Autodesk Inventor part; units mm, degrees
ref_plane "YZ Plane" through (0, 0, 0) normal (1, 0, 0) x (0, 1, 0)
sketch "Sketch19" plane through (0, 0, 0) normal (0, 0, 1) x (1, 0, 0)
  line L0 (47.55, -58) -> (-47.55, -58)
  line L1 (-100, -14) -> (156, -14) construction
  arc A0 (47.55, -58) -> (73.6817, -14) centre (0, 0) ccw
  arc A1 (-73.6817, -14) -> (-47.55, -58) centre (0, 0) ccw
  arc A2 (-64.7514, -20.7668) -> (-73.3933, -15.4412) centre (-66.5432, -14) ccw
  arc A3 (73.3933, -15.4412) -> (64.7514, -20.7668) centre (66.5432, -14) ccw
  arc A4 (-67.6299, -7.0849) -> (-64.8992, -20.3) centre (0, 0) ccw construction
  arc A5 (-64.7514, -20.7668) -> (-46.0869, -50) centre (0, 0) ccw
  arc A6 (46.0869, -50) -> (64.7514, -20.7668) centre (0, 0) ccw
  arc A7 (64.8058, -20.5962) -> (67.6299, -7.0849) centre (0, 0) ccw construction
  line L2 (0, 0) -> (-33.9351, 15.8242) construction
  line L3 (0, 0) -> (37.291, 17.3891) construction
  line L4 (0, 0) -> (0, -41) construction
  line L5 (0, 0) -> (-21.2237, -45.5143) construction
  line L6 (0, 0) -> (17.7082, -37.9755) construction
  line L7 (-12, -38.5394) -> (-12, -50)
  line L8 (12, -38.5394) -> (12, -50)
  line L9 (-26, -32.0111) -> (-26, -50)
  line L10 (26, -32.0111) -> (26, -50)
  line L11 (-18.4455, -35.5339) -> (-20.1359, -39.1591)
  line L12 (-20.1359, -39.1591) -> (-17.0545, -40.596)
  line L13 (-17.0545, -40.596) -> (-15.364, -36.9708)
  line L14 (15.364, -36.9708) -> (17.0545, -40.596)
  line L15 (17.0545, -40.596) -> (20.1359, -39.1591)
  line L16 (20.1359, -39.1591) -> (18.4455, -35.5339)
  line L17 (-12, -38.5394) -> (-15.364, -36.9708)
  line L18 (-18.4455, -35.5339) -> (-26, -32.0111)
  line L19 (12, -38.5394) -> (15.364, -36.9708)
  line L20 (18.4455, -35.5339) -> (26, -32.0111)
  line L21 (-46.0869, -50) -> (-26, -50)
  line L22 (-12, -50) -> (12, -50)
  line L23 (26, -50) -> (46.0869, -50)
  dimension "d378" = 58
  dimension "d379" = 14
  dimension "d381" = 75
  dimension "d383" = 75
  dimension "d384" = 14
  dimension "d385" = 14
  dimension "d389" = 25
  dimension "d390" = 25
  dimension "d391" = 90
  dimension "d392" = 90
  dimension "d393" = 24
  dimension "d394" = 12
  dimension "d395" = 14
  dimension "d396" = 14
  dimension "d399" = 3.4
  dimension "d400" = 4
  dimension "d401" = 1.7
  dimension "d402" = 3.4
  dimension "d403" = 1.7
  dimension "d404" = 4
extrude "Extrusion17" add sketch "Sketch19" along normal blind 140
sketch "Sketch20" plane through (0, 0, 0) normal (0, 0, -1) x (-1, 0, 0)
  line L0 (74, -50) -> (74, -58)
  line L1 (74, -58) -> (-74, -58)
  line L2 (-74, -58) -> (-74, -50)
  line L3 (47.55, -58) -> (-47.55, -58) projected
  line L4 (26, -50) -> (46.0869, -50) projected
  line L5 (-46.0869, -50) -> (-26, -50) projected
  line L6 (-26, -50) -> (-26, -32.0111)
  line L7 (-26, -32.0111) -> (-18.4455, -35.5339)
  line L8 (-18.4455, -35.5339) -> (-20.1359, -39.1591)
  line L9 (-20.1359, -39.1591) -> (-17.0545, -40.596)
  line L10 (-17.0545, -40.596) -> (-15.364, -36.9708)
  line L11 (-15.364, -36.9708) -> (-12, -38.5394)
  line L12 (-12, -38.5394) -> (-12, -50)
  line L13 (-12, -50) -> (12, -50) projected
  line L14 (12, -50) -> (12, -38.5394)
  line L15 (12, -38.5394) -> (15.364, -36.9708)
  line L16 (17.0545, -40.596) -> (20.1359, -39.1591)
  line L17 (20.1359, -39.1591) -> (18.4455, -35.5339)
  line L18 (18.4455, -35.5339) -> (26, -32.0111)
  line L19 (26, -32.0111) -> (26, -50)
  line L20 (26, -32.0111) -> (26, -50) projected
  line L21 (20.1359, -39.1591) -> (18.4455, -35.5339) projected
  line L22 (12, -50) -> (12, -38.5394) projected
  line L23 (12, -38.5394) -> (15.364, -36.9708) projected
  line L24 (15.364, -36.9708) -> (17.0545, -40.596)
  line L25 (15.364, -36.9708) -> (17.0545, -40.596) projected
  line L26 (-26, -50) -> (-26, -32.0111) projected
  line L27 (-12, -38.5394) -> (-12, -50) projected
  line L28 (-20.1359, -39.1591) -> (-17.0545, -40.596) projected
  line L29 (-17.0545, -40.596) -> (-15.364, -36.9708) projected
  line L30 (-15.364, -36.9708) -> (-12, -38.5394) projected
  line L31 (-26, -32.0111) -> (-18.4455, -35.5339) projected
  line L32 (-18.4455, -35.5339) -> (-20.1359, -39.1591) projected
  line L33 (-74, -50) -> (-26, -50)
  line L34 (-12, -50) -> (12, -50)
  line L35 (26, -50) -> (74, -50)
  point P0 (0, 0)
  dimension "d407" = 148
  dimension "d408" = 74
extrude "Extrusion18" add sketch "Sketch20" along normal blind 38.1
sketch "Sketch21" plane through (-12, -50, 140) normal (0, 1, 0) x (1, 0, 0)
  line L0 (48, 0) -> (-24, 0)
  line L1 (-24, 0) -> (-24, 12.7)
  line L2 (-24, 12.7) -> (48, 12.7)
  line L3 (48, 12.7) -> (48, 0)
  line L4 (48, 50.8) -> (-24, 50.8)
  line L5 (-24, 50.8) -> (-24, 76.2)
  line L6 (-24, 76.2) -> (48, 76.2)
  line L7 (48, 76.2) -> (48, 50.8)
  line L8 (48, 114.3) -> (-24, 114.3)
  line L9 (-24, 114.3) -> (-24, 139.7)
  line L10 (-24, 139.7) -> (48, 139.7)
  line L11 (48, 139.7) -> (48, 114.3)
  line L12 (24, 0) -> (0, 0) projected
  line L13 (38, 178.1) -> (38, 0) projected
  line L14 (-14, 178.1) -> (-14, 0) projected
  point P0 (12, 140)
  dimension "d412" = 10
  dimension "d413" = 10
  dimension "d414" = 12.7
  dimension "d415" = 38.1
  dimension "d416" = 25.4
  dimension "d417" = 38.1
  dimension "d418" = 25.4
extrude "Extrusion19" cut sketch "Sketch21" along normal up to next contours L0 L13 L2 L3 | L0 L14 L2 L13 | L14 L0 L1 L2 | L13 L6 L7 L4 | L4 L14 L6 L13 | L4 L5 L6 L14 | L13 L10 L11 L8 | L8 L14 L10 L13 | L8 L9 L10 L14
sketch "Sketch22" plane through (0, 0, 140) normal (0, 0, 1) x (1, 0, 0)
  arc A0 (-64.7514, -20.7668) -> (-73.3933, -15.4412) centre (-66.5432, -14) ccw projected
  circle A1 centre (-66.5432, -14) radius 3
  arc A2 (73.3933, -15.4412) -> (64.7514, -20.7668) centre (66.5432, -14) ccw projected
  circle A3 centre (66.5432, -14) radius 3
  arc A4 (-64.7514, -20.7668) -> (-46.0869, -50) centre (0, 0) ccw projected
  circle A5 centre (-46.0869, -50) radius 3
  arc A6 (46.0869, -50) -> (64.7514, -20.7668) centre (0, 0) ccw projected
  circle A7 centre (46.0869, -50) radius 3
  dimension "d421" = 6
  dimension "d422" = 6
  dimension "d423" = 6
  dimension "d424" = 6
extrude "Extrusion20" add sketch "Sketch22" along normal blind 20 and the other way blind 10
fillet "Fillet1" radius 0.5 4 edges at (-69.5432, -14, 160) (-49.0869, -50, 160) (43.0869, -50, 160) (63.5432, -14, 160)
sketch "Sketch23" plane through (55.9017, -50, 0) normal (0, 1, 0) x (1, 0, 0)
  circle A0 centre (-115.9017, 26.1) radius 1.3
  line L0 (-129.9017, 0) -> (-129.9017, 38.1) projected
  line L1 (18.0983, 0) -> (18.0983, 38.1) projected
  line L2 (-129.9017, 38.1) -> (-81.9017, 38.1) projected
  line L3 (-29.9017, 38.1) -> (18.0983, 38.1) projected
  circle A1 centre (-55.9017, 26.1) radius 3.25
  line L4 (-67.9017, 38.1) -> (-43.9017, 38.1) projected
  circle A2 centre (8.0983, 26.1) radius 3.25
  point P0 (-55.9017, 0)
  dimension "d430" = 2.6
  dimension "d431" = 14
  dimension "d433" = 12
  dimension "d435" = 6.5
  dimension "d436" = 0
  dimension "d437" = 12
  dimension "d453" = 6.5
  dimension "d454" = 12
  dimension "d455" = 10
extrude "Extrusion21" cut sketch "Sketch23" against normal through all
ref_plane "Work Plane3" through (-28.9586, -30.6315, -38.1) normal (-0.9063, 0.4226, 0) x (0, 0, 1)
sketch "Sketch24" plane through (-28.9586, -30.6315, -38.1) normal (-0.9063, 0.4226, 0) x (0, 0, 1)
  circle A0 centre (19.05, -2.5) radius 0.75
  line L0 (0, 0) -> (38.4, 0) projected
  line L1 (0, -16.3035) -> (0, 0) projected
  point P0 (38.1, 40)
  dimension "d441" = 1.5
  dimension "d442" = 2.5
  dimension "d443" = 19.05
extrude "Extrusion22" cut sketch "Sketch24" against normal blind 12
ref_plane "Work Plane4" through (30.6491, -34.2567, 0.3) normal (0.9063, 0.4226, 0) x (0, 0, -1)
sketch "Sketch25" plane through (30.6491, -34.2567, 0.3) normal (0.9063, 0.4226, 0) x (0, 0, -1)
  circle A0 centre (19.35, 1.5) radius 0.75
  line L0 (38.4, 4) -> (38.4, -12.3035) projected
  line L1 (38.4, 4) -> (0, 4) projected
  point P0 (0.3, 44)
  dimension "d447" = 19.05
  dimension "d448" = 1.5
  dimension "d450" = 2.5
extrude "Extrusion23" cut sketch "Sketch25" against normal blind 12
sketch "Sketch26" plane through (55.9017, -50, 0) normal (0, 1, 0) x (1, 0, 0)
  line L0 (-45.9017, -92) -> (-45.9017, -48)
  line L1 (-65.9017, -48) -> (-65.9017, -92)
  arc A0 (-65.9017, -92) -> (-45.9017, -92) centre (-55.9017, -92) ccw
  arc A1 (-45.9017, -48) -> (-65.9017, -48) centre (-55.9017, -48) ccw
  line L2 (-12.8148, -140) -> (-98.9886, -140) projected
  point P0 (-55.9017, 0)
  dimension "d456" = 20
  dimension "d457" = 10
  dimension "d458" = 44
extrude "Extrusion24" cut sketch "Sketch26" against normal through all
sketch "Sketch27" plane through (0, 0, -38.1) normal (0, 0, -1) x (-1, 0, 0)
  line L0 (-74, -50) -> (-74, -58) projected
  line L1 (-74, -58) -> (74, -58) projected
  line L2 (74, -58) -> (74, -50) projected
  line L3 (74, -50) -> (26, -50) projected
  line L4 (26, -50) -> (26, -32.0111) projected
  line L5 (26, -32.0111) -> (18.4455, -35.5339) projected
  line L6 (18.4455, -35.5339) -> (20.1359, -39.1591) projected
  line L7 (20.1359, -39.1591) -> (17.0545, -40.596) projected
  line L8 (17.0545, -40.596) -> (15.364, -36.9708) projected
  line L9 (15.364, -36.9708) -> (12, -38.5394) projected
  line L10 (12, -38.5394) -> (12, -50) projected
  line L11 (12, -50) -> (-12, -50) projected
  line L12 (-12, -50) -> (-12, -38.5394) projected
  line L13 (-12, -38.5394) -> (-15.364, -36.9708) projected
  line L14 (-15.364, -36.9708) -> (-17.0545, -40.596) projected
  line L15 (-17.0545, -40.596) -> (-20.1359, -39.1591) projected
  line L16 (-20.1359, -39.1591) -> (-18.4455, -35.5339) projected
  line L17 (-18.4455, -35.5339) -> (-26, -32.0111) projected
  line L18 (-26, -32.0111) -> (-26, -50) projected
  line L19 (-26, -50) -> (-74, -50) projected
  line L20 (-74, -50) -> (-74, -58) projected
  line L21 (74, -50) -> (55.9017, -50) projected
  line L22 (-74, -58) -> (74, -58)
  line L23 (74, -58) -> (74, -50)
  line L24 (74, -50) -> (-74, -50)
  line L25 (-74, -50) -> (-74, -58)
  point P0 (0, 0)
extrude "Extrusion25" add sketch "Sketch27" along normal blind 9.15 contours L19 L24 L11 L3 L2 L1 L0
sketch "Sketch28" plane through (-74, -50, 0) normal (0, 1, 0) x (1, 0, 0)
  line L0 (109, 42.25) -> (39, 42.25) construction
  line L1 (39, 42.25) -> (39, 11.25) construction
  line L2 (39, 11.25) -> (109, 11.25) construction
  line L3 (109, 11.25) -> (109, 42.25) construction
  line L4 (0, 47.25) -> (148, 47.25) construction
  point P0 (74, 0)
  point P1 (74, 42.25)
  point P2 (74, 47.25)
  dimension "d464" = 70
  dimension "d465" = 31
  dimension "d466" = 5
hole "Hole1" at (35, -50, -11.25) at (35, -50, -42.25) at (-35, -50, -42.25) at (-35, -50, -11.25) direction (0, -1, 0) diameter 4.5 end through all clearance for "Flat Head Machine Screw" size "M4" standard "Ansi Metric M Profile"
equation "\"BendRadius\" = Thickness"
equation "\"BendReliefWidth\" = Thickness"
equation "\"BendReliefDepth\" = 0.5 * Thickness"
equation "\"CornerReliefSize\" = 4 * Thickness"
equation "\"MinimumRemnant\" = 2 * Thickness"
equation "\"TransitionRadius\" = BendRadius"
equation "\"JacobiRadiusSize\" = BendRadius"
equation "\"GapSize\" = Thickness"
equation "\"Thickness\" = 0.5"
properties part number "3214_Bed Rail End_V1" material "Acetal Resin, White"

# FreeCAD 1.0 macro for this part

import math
import FreeCAD as App
import Part
import Sketcher

V = App.Vector
Q = App.Units.Quantity


def edges_at(feature, points):
    """Names of the edges that pass closest to the given points."""
    edges = feature.Shape.Edges
    near = lambda p: min(range(len(edges)), key=lambda i: edges[i].distToShape(Part.Vertex(*p))[0])
    return sorted({f"Edge{near(p) + 1}" for p in points})

doc = App.newDocument("Part")
body = doc.addObject("PartDesign::Body", "Body")

sketch1 = body.newObject("Sketcher::SketchObject", "Sketch")
sketch1.AttachmentSupport = (doc.getObject("XY_Plane"), [""])
sketch1.MapMode = "FlatFace"
sketch1.addGeometry([
    Part.LineSegment(V(-47.5, -58, 0), V(47.5, -58, 0)),
    Part.ArcOfCircle(Part.Circle(V(0, 0, 0), V(0, 0, 1), 75), math.radians(-51), math.radians(-12)),
    Part.ArcOfCircle(Part.Circle(V(66.5, -14, 0), V(0, 0, 1), 7), math.radians(-12), math.radians(255)),
    Part.ArcOfCircle(Part.Circle(V(0, 0, 0), V(0, 0, 1), 68), math.radians(-47), math.radians(-18)),
    Part.LineSegment(V(46.1, -50, 0), V(26, -50, 0)),
    Part.LineSegment(V(26, -50, 0), V(26, -32, 0)),
    Part.LineSegment(V(26, -32, 0), V(18.4, -35.5, 0)),
    Part.LineSegment(V(18.4, -35.5, 0), V(20.1, -39.2, 0)),
    Part.LineSegment(V(20.1, -39.2, 0), V(17.1, -40.6, 0)),
    Part.LineSegment(V(17.1, -40.6, 0), V(15.4, -37, 0)),
    Part.LineSegment(V(15.4, -37, 0), V(12, -38.5, 0)),
    Part.LineSegment(V(12, -38.5, 0), V(12, -50, 0)),
    Part.LineSegment(V(12, -50, 0), V(-12, -50, 0)),
    Part.LineSegment(V(-12, -50, 0), V(-12, -38.5, 0)),
    Part.LineSegment(V(-12, -38.5, 0), V(-15.4, -37, 0)),
    Part.LineSegment(V(-15.4, -37, 0), V(-17.1, -40.6, 0)),
    Part.LineSegment(V(-17.1, -40.6, 0), V(-20.1, -39.2, 0)),
    Part.LineSegment(V(-20.1, -39.2, 0), V(-18.4, -35.5, 0)),
    Part.LineSegment(V(-18.4, -35.5, 0), V(-26, -32, 0)),
    Part.LineSegment(V(-26, -32, 0), V(-26, -50, 0)),
    Part.LineSegment(V(-26, -50, 0), V(-46.1, -50, 0)),
    Part.ArcOfCircle(Part.Circle(V(0, 0, 0), V(0, 0, 1), 68), math.radians(-162), math.radians(-133)),
    Part.ArcOfCircle(Part.Circle(V(-66.5, -14, 0), V(0, 0, 1), 7), math.radians(-75), math.radians(192)),
    Part.ArcOfCircle(Part.Circle(V(0, 0, 0), V(0, 0, 1), 75), math.radians(-168), math.radians(-129)),
], False)
sketch1.addConstraint([
    Sketcher.Constraint("Coincident", 0, 2, 1, 1),
    Sketcher.Constraint("Tangent", 1, 2, 2, 1),
    Sketcher.Constraint("Coincident", 2, 2, 3, 2),
    Sketcher.Constraint("Coincident", 3, 1, 4, 1),
    Sketcher.Constraint("Coincident", 4, 2, 5, 1),
    Sketcher.Constraint("Coincident", 5, 2, 6, 1),
    Sketcher.Constraint("Coincident", 6, 2, 7, 1),
    Sketcher.Constraint("Coincident", 7, 2, 8, 1),
    Sketcher.Constraint("Coincident", 8, 2, 9, 1),
    Sketcher.Constraint("Coincident", 9, 2, 10, 1),
    Sketcher.Constraint("Coincident", 10, 2, 11, 1),
    Sketcher.Constraint("Coincident", 11, 2, 12, 1),
    Sketcher.Constraint("Coincident", 12, 2, 13, 1),
    Sketcher.Constraint("Coincident", 13, 2, 14, 1),
    Sketcher.Constraint("Coincident", 14, 2, 15, 1),
    Sketcher.Constraint("Coincident", 15, 2, 16, 1),
    Sketcher.Constraint("Coincident", 16, 2, 17, 1),
    Sketcher.Constraint("Coincident", 17, 2, 18, 1),
    Sketcher.Constraint("Coincident", 18, 2, 19, 1),
    Sketcher.Constraint("Coincident", 19, 2, 20, 1),
    Sketcher.Constraint("Coincident", 20, 2, 21, 2),
    Sketcher.Constraint("Coincident", 21, 1, 22, 1),
    Sketcher.Constraint("Tangent", 22, 2, 23, 1),
    Sketcher.Constraint("Coincident", 23, 2, 0, 1),
    Sketcher.Constraint("Horizontal", 0),
    Sketcher.Constraint("Horizontal", 4),
    Sketcher.Constraint("Vertical", 5),
    Sketcher.Constraint("Vertical", 11),
    Sketcher.Constraint("Horizontal", 12),
    Sketcher.Constraint("Vertical", 13),
    Sketcher.Constraint("Vertical", 19),
    Sketcher.Constraint("Horizontal", 20),
    Sketcher.Constraint("Coincident", 1, 3, -1, 1),
    Sketcher.Constraint("Coincident", 3, 3, -1, 1),
    Sketcher.Constraint("Coincident", 21, 3, -1, 1),
    Sketcher.Constraint("Coincident", 23, 3, -1, 1),
    Sketcher.Constraint("Equal", 3, 21),
    Sketcher.Constraint("Equal", 2, 22),
    Sketcher.Constraint("Equal", 1, 23),
    Sketcher.Constraint("Symmetric", 10, 2, 13, 2, -2),
    Sketcher.Constraint("Symmetric", 9, 2, 14, 2, -2),
    Sketcher.Constraint("Symmetric", 8, 2, 15, 2, -2),
    Sketcher.Constraint("Symmetric", 7, 2, 16, 2, -2),
    Sketcher.Constraint("Symmetric", 6, 2, 17, 2, -2),
    Sketcher.Constraint("Symmetric", 5, 2, 18, 2, -2),
    Sketcher.Constraint("Perpendicular", 6, 7),
    Sketcher.Constraint("Perpendicular", 7, 8),
    Sketcher.Constraint("Perpendicular", 8, 9),
    Sketcher.Constraint("Perpendicular", 9, 10),
    Sketcher.Constraint("Horizontal", 2, 3, 22, 3),
    Sketcher.Constraint("Horizontal", 4, 2, 11, 2),
    Sketcher.Constraint("Horizontal", 12, 2, 19, 2),
    Sketcher.Constraint("Equal", 7, 9),
    Sketcher.Constraint("Radius", 1, 75.0),
    Sketcher.Constraint("Radius", 2, 7.0),
    Sketcher.Constraint("DistanceX", 12, 2, 12, 1, 24.0),
    Sketcher.Constraint("Distance", 7, 4.0),
    Sketcher.Constraint("DistanceY", 2, 3, -1, 1, 14.0),
    Sketcher.Constraint("DistanceY", 0, 2, -1, 1, 58.0),
    Sketcher.Constraint("Radius", 3, 68.0),
    Sketcher.Constraint("DistanceX", 10, 2, 5, 2, 14.0),
    Sketcher.Constraint("Distance", 8, 3.4),
    Sketcher.Constraint("Angle", 6, Q("-154.9995 deg")),
    Sketcher.Constraint("DistanceY", 3, 1, -1, 1, 50.0),
    Sketcher.Constraint("DistanceY", 5, 1, 5, 2, 17.989),
    Sketcher.Constraint("DistanceY", 6, 2, -1, 1, 35.534),
])
pad1 = body.newObject("PartDesign::Pad", "Pad")
pad1.Profile = sketch1
pad1.Length = 140

sketch2 = body.newObject("Sketcher::SketchObject", "Sketch001")
sketch2.AttachmentSupport = (doc.getObject("XY_Plane"), [""])
sketch2.MapMode = "FlatFace"
sketch2.addGeometry([
    Part.LineSegment(V(-74, -58, 0), V(-74, -50, 0)),
    Part.LineSegment(V(-74, -50, 0), V(-26, -50, 0)),
    Part.LineSegment(V(-26, -50, 0), V(-26, -32, 0)),
    Part.LineSegment(V(-26, -32, 0), V(-18.4, -35.5, 0)),
    Part.LineSegment(V(-18.4, -35.5, 0), V(-20.1, -39.2, 0)),
    Part.LineSegment(V(-20.1, -39.2, 0), V(-17.1, -40.6, 0)),
    Part.LineSegment(V(-17.1, -40.6, 0), V(-15.4, -37, 0)),
    Part.LineSegment(V(-15.4, -37, 0), V(-12, -38.5, 0)),
    Part.LineSegment(V(-12, -38.5, 0), V(-12, -50, 0)),
    Part.LineSegment(V(-12, -50, 0), V(12, -50, 0)),
    Part.LineSegment(V(12, -50, 0), V(12, -38.5, 0)),
    Part.LineSegment(V(12, -38.5, 0), V(15.4, -37, 0)),
    Part.LineSegment(V(15.4, -37, 0), V(17.1, -40.6, 0)),
    Part.LineSegment(V(17.1, -40.6, 0), V(20.1, -39.2, 0)),
    Part.LineSegment(V(20.1, -39.2, 0), V(18.4, -35.5, 0)),
    Part.LineSegment(V(18.4, -35.5, 0), V(26, -32, 0)),
    Part.LineSegment(V(26, -32, 0), V(26, -50, 0)),
    Part.LineSegment(V(26, -50, 0), V(74, -50, 0)),
    Part.LineSegment(V(74, -50, 0), V(74, -58, 0)),
    Part.LineSegment(V(74, -58, 0), V(-74, -58, 0)),
], False)
sketch2.addConstraint([
    Sketcher.Constraint("Coincident", 0, 2, 1, 1),
    Sketcher.Constraint("Coincident", 1, 2, 2, 1),
    Sketcher.Constraint("Coincident", 2, 2, 3, 1),
    Sketcher.Constraint("Coincident", 3, 2, 4, 1),
    Sketcher.Constraint("Coincident", 4, 2, 5, 1),
    Sketcher.Constraint("Coincident", 5, 2, 6, 1),
    Sketcher.Constraint("Coincident", 6, 2, 7, 1),
    Sketcher.Constraint("Coincident", 7, 2, 8, 1),
    Sketcher.Constraint("Coincident", 8, 2, 9, 1),
    Sketcher.Constraint("Coincident", 9, 2, 10, 1),
    Sketcher.Constraint("Coincident", 10, 2, 11, 1),
    Sketcher.Constraint("Coincident", 11, 2, 12, 1),
    Sketcher.Constraint("Coincident", 12, 2, 13, 1),
    Sketcher.Constraint("Coincident", 13, 2, 14, 1),
    Sketcher.Constraint("Coincident", 14, 2, 15, 1),
    Sketcher.Constraint("Coincident", 15, 2, 16, 1),
    Sketcher.Constraint("Coincident", 16, 2, 17, 1),
    Sketcher.Constraint("Coincident", 17, 2, 18, 1),
    Sketcher.Constraint("Coincident", 18, 2, 19, 1),
    Sketcher.Constraint("Coincident", 19, 2, 0, 1),
    Sketcher.Constraint("Vertical", 0),
    Sketcher.Constraint("Horizontal", 1),
    Sketcher.Constraint("Vertical", 2),
    Sketcher.Constraint("Vertical", 8),
    Sketcher.Constraint("Horizontal", 9),
    Sketcher.Constraint("Vertical", 10),
    Sketcher.Constraint("Vertical", 16),
    Sketcher.Constraint("Horizontal", 17),
    Sketcher.Constraint("Vertical", 18),
    Sketcher.Constraint("Horizontal", 19),
    Sketcher.Constraint("Symmetric", 7, 2, 10, 2, -2),
    Sketcher.Constraint("Symmetric", 6, 2, 11, 2, -2),
    Sketcher.Constraint("Symmetric", 5, 2, 12, 2, -2),
    Sketcher.Constraint("Symmetric", 4, 2, 13, 2, -2),
    Sketcher.Constraint("Symmetric", 3, 2, 14, 2, -2),
    Sketcher.Constraint("Symmetric", 2, 2, 15, 2, -2),
    Sketcher.Constraint("Symmetric", 0, 2, 17, 2, -2),
    Sketcher.Constraint("Perpendicular", 3, 4),
    Sketcher.Constraint("Perpendicular", 4, 5),
    Sketcher.Constraint("Perpendicular", 5, 6),
    Sketcher.Constraint("Perpendicular", 6, 7),
    Sketcher.Constraint("Horizontal", 1, 2, 8, 2),
    Sketcher.Constraint("Equal", 4, 6),
    Sketcher.Constraint("DistanceX", 19, 2, 19, 1, 148.0),
    Sketcher.Constraint("DistanceX", 1, 1, 1, 2, 48.0),
    Sketcher.Constraint("DistanceX", 9, 1, 9, 2, 24.0),
    Sketcher.Constraint("DistanceY", 0, 1, 0, 2, 8.0),
    Sketcher.Constraint("Angle", 3, Q("-25.0005 deg")),
    Sketcher.Constraint("Distance", 4, 4.0),
    Sketcher.Constraint("DistanceY", 0, 2, -1, 1, 50.0),
    Sketcher.Constraint("Distance", 5, 3.4),
    Sketcher.Constraint("DistanceY", 2, 1, 2, 2, 17.989),
    Sketcher.Constraint("DistanceY", 3, 2, -1, 1, 35.534),
])
pad2 = body.newObject("PartDesign::Pad", "Pad001")
pad2.Profile = sketch2
pad2.Length = 38.1
pad2.Reversed = True

sketch3 = body.newObject("Sketcher::SketchObject", "Sketch002")
sketch3.AttachmentSupport = (doc.getObject("XZ_Plane"), [""])
sketch3.MapMode = "FlatFace"
sketch3.AttachmentOffset = App.Placement(V(0, 0, 50), App.Rotation())
sketch3.addGeometry([
    Part.LineSegment(V(36, 140, 0), V(36, 127, 0)),
    Part.LineSegment(V(36, 127, 0), V(-36, 127, 0)),
    Part.LineSegment(V(-36, 127, 0), V(-36, 140, 0)),
    Part.LineSegment(V(-36, 140, 0), V(36, 140, 0)),
    Part.LineSegment(V(36, 64, 0), V(-36, 64, 0)),
    Part.LineSegment(V(-36, 64, 0), V(-36, 89, 0)),
    Part.LineSegment(V(-36, 89, 0), V(36, 89, 0)),
    Part.LineSegment(V(36, 89, 0), V(36, 64, 0)),
    Part.LineSegment(V(36, 0, 0), V(-36, 0, 0)),
    Part.LineSegment(V(-36, 0, 0), V(-36, 26, 0)),
    Part.LineSegment(V(-36, 26, 0), V(36, 26, 0)),
    Part.LineSegment(V(36, 26, 0), V(36, 0, 0)),
], False)
sketch3.addConstraint([
    Sketcher.Constraint("Coincident", 0, 2, 1, 1),
    Sketcher.Constraint("Coincident", 1, 2, 2, 1),
    Sketcher.Constraint("Coincident", 2, 2, 3, 1),
    Sketcher.Constraint("Coincident", 3, 2, 0, 1),
    Sketcher.Constraint("Coincident", 4, 2, 5, 1),
    Sketcher.Constraint("Coincident", 5, 2, 6, 1),
    Sketcher.Constraint("Coincident", 6, 2, 7, 1),
    Sketcher.Constraint("Coincident", 7, 2, 4, 1),
    Sketcher.Constraint("Coincident", 8, 2, 9, 1),
    Sketcher.Constraint("Coincident", 9, 2, 10, 1),
    Sketcher.Constraint("Coincident", 10, 2, 11, 1),
    Sketcher.Constraint("Coincident", 11, 2, 8, 1),
    Sketcher.Constraint("Vertical", 0),
    Sketcher.Constraint("Horizontal", 1),
    Sketcher.Constraint("Vertical", 2),
    Sketcher.Constraint("Horizontal", 3),
    Sketcher.Constraint("Horizontal", 4),
    Sketcher.Constraint("Vertical", 5),
    Sketcher.Constraint("Horizontal", 6),
    Sketcher.Constraint("Vertical", 7),
    Sketcher.Constraint("Horizontal", 8),
    Sketcher.Constraint("Vertical", 9),
    Sketcher.Constraint("Horizontal", 10),
    Sketcher.Constraint("Vertical", 11),
    Sketcher.Constraint("Vertical", 2, 2, 4, 2),
    Sketcher.Constraint("Vertical", 3, 2, 6, 2),
    Sketcher.Constraint("Vertical", 5, 2, 8, 2),
    Sketcher.Constraint("Vertical", 7, 2, 10, 2),
    Sketcher.Constraint("Equal", 7, 9),
    Sketcher.Constraint("DistanceY", 0, 2, 0, 1, 12.7),
    Sketcher.Constraint("DistanceY", 5, 1, 5, 2, 25.4),
    Sketcher.Constraint("DistanceY", 5, 2, 1, 2, 38.1),
    Sketcher.Constraint("DistanceY", 9, 2, 4, 2, 38.1),
    Sketcher.Constraint("DistanceX", 1, 2, 1, 1, 72.0),
    Sketcher.Constraint("DistanceX", -1, 1, 0, 2, 36.0),
    Sketcher.Constraint("DistanceY", -1, 1, 2, 2, 140.0),
])
pocket1 = body.newObject("PartDesign::Pocket", "Pocket")
pocket1.Profile = sketch3
pocket1.Length = 17.9889

sketch4 = body.newObject("Sketcher::SketchObject", "Sketch003")
sketch4.AttachmentSupport = (doc.getObject("XY_Plane"), [""])
sketch4.MapMode = "FlatFace"
sketch4.AttachmentOffset = App.Placement(V(0, 0, 140), App.Rotation())
sketch4.addGeometry([
    Part.Circle(V(-66.5, -14, 0), V(0, 0, 1), 3),
    Part.Circle(V(66.5, -14, 0), V(0, 0, 1), 3),
    Part.Circle(V(-46.1, -50, 0), V(0, 0, 1), 3),
    Part.Circle(V(46.1, -50, 0), V(0, 0, 1), 3),
], False)
sketch4.addConstraint([
    Sketcher.Constraint("Equal", 0, 1),
    Sketcher.Constraint("Equal", 1, 2),
    Sketcher.Constraint("Equal", 2, 3),
    Sketcher.Constraint("Symmetric", 0, 3, 1, 3, -2),
    Sketcher.Constraint("Symmetric", 2, 3, 3, 3, -2),
    Sketcher.Constraint("Diameter", 0, 6.0),
    Sketcher.Constraint("DistanceY", 0, 3, -1, 1, 14.0),
    Sketcher.Constraint("DistanceY", 2, 3, -1, 1, 50.0),
    Sketcher.Constraint("DistanceX", 2, 3, 1, 3, 112.63),
    Sketcher.Constraint("DistanceX", 2, 3, -1, 1, 46.087),
])
pad3 = body.newObject("PartDesign::Pad", "Pad002")
pad3.Profile = sketch4
pad3.Type = "TwoLengths"
pad3.Length = 20
pad3.Length2 = 10
doc.recompute()

fillet = body.newObject("PartDesign::Fillet", "Fillet")
fillet.Base = (pad3, edges_at(pad3, [
    (-69.543, -14, 160),
    (-49.087, -50, 160),
    (43.087, -50, 160),
    (63.543, -14, 160),
]))
fillet.Radius = 0.5

sketch5 = body.newObject("Sketcher::SketchObject", "Sketch004")
sketch5.AttachmentSupport = (doc.getObject("XZ_Plane"), [""])
sketch5.MapMode = "FlatFace"
sketch5.AttachmentOffset = App.Placement(V(0, 0, 50), App.Rotation())
sketch5.addGeometry([
    Part.Circle(V(-60, -26.1, 0), V(0, 0, 1), 1.3),
    Part.Circle(V(0, -26.1, 0), V(0, 0, 1), 3.2),
    Part.Circle(V(64, -26.1, 0), V(0, 0, 1), 3.2),
], False)
sketch5.addConstraint([
    Sketcher.Constraint("Equal", 1, 2),
    Sketcher.Constraint("PointOnObject", 1, 3, -2),
    Sketcher.Constraint("Horizontal", 0, 3, 1, 3),
    Sketcher.Constraint("Horizontal", 1, 3, 2, 3),
    Sketcher.Constraint("Diameter", 0, 2.6),
    Sketcher.Constraint("Diameter", 1, 6.5),
    Sketcher.Constraint("DistanceX", 0, 3, -1, 1, 60.0),
    Sketcher.Constraint("DistanceX", -1, 1, 2, 3, 64.0),
    Sketcher.Constraint("DistanceY", 0, 3, -1, 1, 26.1),
])
pocket2 = body.newObject("PartDesign::Pocket", "Pocket001")
pocket2.Profile = sketch5
pocket2.Type = "ThroughAll"
pocket2.Reversed = True

sketch6 = body.newObject("Sketcher::SketchObject", "Sketch005")
sketch6.Placement = App.Placement(V(-28.9586, -30.6315, -38.1), App.Rotation(V(0, 0, 1), V(0.422618262, 0.906307787, 0), V(-0.906307787, 0.422618262, 0), "ZXY"))
sketch6.addGeometry(Part.Circle(V(19.1, -2.5, 0), V(0, 0, 1), 0.8), False)
sketch6.addConstraint([
    Sketcher.Constraint("Diameter", 0, 1.5),
    Sketcher.Constraint("DistanceY", 0, 3, -1, 1, 2.5),
    Sketcher.Constraint("DistanceX", -1, 1, 0, 3, 19.05),
])
pocket3 = body.newObject("PartDesign::Pocket", "Pocket002")
pocket3.Profile = sketch6
pocket3.Length = 12

sketch7 = body.newObject("Sketcher::SketchObject", "Sketch006")
sketch7.Placement = App.Placement(V(30.6491, -34.2567, 0.3), App.Rotation(V(0, 0, -1), V(-0.422618262, 0.906307787, 0), V(0.906307787, 0.422618262, 0), "ZXY"))
sketch7.addGeometry(Part.Circle(V(19.4, 1.5, 0), V(0, 0, 1), 0.8), False)
sketch7.addConstraint([
    Sketcher.Constraint("Diameter", 0, 1.5),
    Sketcher.Constraint("DistanceY", -1, 1, 0, 3, 1.5),
    Sketcher.Constraint("DistanceX", -1, 1, 0, 3, 19.35),
])
pocket4 = body.newObject("PartDesign::Pocket", "Pocket003")
pocket4.Profile = sketch7
pocket4.Length = 12

sketch8 = body.newObject("Sketcher::SketchObject", "Sketch007")
sketch8.AttachmentSupport = (doc.getObject("XZ_Plane"), [""])
sketch8.MapMode = "FlatFace"
sketch8.AttachmentOffset = App.Placement(V(0, 0, 50), App.Rotation())
sketch8.addGeometry([
    Part.ArcOfCircle(Part.Circle(V(0, 92, 0), V(0, 0, 1), 10), math.radians(0), math.radians(180)),
    Part.LineSegment(V(10, 92, 0), V(10, 48, 0)),
    Part.ArcOfCircle(Part.Circle(V(0, 48, 0), V(0, 0, 1), 10), math.radians(180), math.radians(360)),
    Part.LineSegment(V(-10, 48, 0), V(-10, 92, 0)),
], False)
sketch8.addConstraint([
    Sketcher.Constraint("Tangent", 0, 1, 1, 1),
    Sketcher.Constraint("Tangent", 1, 2, 2, 2),
    Sketcher.Constraint("Tangent", 2, 1, 3, 1),
    Sketcher.Constraint("Tangent", 3, 2, 0, 2),
    Sketcher.Constraint("Vertical", 1),
    Sketcher.Constraint("Vertical", 3),
    Sketcher.Constraint("PointOnObject", 0, 3, -2),
    Sketcher.Constraint("Radius", 0, 10.0),
    Sketcher.Constraint("DistanceY", 1, 2, 1, 1, 44.0),
    Sketcher.Constraint("DistanceY", -1, 1, 0, 3, 92.0),
])
pocket5 = body.newObject("PartDesign::Pocket", "Pocket004")
pocket5.Profile = sketch8
pocket5.Type = "ThroughAll"
pocket5.Reversed = True

sketch9 = body.newObject("Sketcher::SketchObject", "Sketch008")
sketch9.AttachmentSupport = (doc.getObject("XY_Plane"), [""])
sketch9.MapMode = "FlatFace"
sketch9.AttachmentOffset = App.Placement(V(0, 0, -38.1), App.Rotation())
sketch9.addGeometry([
    Part.LineSegment(V(-74, -50, 0), V(74, -50, 0)),
    Part.LineSegment(V(74, -50, 0), V(74, -58, 0)),
    Part.LineSegment(V(74, -58, 0), V(-74, -58, 0)),
    Part.LineSegment(V(-74, -58, 0), V(-74, -50, 0)),
], False)
sketch9.addConstraint([
    Sketcher.Constraint("Coincident", 0, 2, 1, 1),
    Sketcher.Constraint("Coincident", 1, 2, 2, 1),
    Sketcher.Constraint("Coincident", 2, 2, 3, 1),
    Sketcher.Constraint("Coincident", 3, 2, 0, 1),
    Sketcher.Constraint("Horizontal", 0),
    Sketcher.Constraint("Vertical", 1),
    Sketcher.Constraint("Horizontal", 2),
    Sketcher.Constraint("Vertical", 3),
    Sketcher.Constraint("DistanceX", 0, 1, 0, 2, 148.0),
    Sketcher.Constraint("DistanceY", 1, 2, 1, 1, 8.0),
    Sketcher.Constraint("DistanceX", -1, 1, 0, 2, 74.0),
    Sketcher.Constraint("DistanceY", 0, 2, -1, 1, 50.0),
])
pad4 = body.newObject("PartDesign::Pad", "Pad003")
pad4.Profile = sketch9
pad4.Length = 9.15
pad4.Reversed = True

sketch10 = body.newObject("Sketcher::SketchObject", "Sketch009")
sketch10.AttachmentSupport = (doc.getObject("XZ_Plane"), [""])
sketch10.MapMode = "FlatFace"
sketch10.AttachmentOffset = App.Placement(V(0, 0, 50), App.Rotation())
sketch10.addGeometry([
    Part.Circle(V(35, -11.2, 0), V(0, 0, 1), 2.2),
    Part.Circle(V(35, -42.2, 0), V(0, 0, 1), 2.2),
    Part.Circle(V(-35, -42.2, 0), V(0, 0, 1), 2.2),
    Part.Circle(V(-35, -11.2, 0), V(0, 0, 1), 2.2),
], False)
sketch10.addConstraint([
    Sketcher.Constraint("Equal", 0, 1),
    Sketcher.Constraint("Equal", 1, 2),
    Sketcher.Constraint("Equal", 2, 3),
    Sketcher.Constraint("Symmetric", 1, 3, 2, 3, -2),
    Sketcher.Constraint("Symmetric", 0, 3, 3, 3, -2),
    Sketcher.Constraint("Vertical", 0, 3, 1, 3),
    Sketcher.Constraint("Diameter", 0, 4.5),
    Sketcher.Constraint("DistanceX", -1, 1, 0, 3, 35.0),
    Sketcher.Constraint("DistanceY", 1, 3, 0, 3, 31.0),
    Sketcher.Constraint("DistanceY", 0, 3, -1, 1, 11.25),
])
doc.recompute()
hole = body.newObject("PartDesign::Hole", "Hole")
hole.Profile = sketch10
hole.ThreadType = "None"
hole.Diameter = 4.5
hole.DepthType = "ThroughAll"
hole.Reversed = True

doc.recompute()
